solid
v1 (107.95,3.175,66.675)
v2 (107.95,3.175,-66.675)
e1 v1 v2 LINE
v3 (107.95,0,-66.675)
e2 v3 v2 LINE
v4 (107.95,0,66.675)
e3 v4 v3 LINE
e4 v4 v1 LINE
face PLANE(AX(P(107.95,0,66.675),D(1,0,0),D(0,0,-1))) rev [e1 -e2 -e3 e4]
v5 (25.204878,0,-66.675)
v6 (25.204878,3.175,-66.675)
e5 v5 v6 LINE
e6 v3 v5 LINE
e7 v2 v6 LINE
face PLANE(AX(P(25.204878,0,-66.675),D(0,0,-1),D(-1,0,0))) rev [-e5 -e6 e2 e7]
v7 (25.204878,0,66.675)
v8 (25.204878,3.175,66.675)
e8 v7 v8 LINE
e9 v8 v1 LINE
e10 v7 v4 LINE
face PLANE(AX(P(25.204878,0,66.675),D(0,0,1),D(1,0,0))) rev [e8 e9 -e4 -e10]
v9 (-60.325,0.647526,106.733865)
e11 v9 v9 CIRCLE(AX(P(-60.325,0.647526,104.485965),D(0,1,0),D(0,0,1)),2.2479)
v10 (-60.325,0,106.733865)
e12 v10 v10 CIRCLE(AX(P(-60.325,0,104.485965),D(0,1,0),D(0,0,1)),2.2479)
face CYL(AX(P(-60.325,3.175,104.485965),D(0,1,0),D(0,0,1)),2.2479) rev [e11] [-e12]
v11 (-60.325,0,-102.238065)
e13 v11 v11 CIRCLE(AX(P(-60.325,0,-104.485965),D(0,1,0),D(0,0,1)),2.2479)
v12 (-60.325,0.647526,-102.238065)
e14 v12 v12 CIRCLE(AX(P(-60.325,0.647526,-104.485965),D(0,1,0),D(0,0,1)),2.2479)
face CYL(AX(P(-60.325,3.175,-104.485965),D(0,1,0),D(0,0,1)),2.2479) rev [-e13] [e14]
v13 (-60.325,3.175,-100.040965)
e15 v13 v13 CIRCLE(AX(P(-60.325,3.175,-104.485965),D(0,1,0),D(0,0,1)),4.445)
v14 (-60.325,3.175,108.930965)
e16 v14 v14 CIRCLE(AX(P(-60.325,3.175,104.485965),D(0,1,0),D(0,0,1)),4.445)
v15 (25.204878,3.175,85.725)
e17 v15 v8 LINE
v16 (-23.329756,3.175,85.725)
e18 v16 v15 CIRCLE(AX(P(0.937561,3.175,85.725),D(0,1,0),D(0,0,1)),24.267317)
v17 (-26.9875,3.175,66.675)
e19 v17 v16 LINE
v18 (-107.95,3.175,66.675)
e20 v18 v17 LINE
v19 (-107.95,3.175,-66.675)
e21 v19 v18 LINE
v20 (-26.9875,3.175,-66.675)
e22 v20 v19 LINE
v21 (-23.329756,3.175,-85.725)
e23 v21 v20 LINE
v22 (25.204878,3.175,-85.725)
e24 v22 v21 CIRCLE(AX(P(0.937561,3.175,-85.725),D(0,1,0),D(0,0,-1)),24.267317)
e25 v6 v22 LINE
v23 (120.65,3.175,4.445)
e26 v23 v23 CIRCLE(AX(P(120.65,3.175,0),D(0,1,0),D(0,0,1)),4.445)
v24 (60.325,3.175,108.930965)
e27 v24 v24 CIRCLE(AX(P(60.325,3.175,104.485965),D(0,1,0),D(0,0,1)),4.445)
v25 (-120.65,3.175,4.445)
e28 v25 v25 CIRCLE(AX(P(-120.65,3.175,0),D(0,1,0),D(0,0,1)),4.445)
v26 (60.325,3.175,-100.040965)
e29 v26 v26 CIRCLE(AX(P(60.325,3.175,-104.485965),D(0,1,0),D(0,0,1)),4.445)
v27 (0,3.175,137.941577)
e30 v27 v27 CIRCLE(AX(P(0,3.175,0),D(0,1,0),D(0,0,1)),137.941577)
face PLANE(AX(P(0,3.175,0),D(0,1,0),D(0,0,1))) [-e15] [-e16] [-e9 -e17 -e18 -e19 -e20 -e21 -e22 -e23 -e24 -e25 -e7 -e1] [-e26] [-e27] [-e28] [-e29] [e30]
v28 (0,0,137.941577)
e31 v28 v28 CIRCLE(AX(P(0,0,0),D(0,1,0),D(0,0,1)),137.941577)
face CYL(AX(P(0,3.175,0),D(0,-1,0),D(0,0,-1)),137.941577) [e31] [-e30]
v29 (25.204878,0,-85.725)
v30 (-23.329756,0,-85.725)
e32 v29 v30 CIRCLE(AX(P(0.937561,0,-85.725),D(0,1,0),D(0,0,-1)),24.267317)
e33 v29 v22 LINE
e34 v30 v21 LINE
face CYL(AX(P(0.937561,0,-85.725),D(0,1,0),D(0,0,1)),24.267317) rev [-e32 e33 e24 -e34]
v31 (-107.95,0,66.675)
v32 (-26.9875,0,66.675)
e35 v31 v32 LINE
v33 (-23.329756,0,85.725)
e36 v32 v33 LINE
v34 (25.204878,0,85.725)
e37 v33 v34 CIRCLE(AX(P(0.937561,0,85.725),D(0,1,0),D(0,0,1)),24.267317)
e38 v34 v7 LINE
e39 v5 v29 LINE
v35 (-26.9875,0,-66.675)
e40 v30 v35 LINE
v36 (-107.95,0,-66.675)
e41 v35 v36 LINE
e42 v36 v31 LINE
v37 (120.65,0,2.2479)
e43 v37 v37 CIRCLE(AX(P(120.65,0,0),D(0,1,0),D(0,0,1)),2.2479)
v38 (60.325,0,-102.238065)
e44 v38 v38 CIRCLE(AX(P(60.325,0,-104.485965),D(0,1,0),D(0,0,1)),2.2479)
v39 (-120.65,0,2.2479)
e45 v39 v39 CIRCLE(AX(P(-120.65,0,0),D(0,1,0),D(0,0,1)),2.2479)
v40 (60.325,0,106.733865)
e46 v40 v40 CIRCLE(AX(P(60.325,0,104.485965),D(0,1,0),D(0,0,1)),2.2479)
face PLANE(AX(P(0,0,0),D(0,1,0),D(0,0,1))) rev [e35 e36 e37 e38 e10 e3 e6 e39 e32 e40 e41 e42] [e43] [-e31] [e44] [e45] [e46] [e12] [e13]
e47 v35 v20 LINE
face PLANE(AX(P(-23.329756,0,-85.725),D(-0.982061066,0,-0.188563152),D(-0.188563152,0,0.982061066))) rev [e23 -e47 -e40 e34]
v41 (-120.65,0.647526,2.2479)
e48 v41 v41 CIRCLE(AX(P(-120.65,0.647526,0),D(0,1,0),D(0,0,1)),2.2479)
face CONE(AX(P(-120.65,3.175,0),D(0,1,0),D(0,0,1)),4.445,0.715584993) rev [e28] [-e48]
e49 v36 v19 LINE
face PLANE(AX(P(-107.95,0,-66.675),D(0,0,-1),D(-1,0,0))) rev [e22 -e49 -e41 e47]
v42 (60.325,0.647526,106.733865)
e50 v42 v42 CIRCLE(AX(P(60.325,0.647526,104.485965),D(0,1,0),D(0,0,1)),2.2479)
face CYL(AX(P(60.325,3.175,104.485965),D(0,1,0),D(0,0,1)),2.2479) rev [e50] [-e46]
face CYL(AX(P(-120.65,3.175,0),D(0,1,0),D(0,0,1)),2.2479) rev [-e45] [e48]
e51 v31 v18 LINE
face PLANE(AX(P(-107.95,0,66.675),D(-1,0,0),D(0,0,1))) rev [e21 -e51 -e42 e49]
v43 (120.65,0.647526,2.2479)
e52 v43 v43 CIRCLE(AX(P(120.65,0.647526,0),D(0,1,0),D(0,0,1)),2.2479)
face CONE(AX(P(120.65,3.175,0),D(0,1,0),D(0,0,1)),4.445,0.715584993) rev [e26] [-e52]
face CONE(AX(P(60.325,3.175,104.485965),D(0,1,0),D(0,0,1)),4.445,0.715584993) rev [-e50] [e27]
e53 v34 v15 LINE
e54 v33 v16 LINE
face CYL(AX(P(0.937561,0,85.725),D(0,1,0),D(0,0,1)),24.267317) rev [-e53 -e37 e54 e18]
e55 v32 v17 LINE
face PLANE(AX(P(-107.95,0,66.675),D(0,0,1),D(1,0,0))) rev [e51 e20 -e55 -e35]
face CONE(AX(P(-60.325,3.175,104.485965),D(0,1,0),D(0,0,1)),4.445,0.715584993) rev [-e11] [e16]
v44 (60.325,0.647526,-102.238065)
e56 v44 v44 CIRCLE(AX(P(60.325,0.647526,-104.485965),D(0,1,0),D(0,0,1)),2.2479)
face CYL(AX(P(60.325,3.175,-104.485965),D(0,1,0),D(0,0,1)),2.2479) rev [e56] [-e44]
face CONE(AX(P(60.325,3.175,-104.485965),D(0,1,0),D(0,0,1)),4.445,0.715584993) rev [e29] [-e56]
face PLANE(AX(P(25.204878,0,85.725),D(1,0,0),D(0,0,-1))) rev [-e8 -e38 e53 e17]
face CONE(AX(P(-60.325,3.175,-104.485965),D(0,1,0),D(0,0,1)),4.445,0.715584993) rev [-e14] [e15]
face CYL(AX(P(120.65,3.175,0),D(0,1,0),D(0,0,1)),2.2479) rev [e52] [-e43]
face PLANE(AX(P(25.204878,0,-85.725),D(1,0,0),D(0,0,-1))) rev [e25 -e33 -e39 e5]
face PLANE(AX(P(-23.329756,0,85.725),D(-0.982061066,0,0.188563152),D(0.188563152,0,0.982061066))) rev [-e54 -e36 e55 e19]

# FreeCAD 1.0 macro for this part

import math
import FreeCAD as App
import Part
import Sketcher
from FreeCAD import Vector
Q = App.Units.Quantity

doc = App.newDocument("Part")
body = doc.addObject("PartDesign::Body", "Body")

# Sketch on XZ plane
sketch1 = body.newObject("Sketcher::SketchObject", "Sketch")
sketch1.AttachmentSupport = (doc.getObject("XZ_Plane"), [""])
sketch1.MapMode = "FlatFace"
sketch1.addGeometry(Part.Circle(Vector(0, 0, 0), Vector(0, 0, 1), 138), False)
sketch1.addConstraint(Sketcher.Constraint("Coincident", 0, 3, -1, 1))
sketch1.addConstraint(Sketcher.Constraint("Diameter", 0, Q("275.883153 mm")))
pad1 = body.newObject("PartDesign::Pad", "Pad")
pad1.Profile = sketch1
pad1.Length = Q("0.125 in")
pad1.Reversed = True

# Sketch on XZ plane
sketch2 = body.newObject("Sketcher::SketchObject", "Sketch001")
sketch2.AttachmentSupport = (doc.getObject("XZ_Plane"), [""])
sketch2.MapMode = "FlatFace"
sketch2.AttachmentOffset = App.Placement(Vector(0, 0, -0.125 * 25.4), App.Rotation())
sketch2.addGeometry(Part.LineSegment(Vector(25, 67, 0), Vector(108, 67, 0)), False)
sketch2.addGeometry(Part.LineSegment(Vector(108, 67, 0), Vector(108, -67, 0)), False)
sketch2.addGeometry(Part.LineSegment(Vector(108, -67, 0), Vector(25, -67, 0)), False)
sketch2.addGeometry(Part.LineSegment(Vector(25, -67, 0), Vector(25, -86, 0)), False)
sketch2.addGeometry(Part.ArcOfCircle(Part.Circle(Vector(1, -86, 0), Vector(0, 0, 1), 24), math.radians(-180), math.radians(0)), False)
sketch2.addGeometry(Part.LineSegment(Vector(-23, -86, 0), Vector(-27, -67, 0)), False)
sketch2.addGeometry(Part.LineSegment(Vector(-27, -67, 0), Vector(-108, -67, 0)), False)
sketch2.addGeometry(Part.LineSegment(Vector(-108, -67, 0), Vector(-108, 67, 0)), False)
sketch2.addGeometry(Part.LineSegment(Vector(-108, 67, 0), Vector(-27, 67, 0)), False)
sketch2.addGeometry(Part.LineSegment(Vector(-27, 67, 0), Vector(-23, 86, 0)), False)
sketch2.addGeometry(Part.ArcOfCircle(Part.Circle(Vector(1, 86, 0), Vector(0, 0, 1), 24), math.radians(0), math.radians(180)), False)
sketch2.addGeometry(Part.LineSegment(Vector(25, 86, 0), Vector(25, 67, 0)), False)
sketch2.addConstraint(Sketcher.Constraint("Coincident", 0, 2, 1, 1))
sketch2.addConstraint(Sketcher.Constraint("Coincident", 1, 2, 2, 1))
sketch2.addConstraint(Sketcher.Constraint("Coincident", 2, 2, 3, 1))
sketch2.addConstraint(Sketcher.Constraint("Tangent", 3, 2, 4, 2))
sketch2.addConstraint(Sketcher.Constraint("Coincident", 4, 1, 5, 1))
sketch2.addConstraint(Sketcher.Constraint("Coincident", 5, 2, 6, 1))
sketch2.addConstraint(Sketcher.Constraint("Coincident", 6, 2, 7, 1))
sketch2.addConstraint(Sketcher.Constraint("Coincident", 7, 2, 8, 1))
sketch2.addConstraint(Sketcher.Constraint("Coincident", 8, 2, 9, 1))
sketch2.addConstraint(Sketcher.Constraint("Coincident", 9, 2, 10, 2))
sketch2.addConstraint(Sketcher.Constraint("Tangent", 10, 1, 11, 1))
sketch2.addConstraint(Sketcher.Constraint("Coincident", 11, 2, 0, 1))
sketch2.addConstraint(Sketcher.Constraint("Horizontal", 0))
sketch2.addConstraint(Sketcher.Constraint("Vertical", 1))
sketch2.addConstraint(Sketcher.Constraint("Horizontal", 2))
sketch2.addConstraint(Sketcher.Constraint("Vertical", 3))
sketch2.addConstraint(Sketcher.Constraint("Horizontal", 6))
sketch2.addConstraint(Sketcher.Constraint("Vertical", 7))
sketch2.addConstraint(Sketcher.Constraint("Horizontal", 8))
sketch2.addConstraint(Sketcher.Constraint("Vertical", 11))
sketch2.addConstraint(Sketcher.Constraint("Equal", 4, 10))
sketch2.addConstraint(Sketcher.Constraint("Symmetric", 0, 2, 6, 2, -1, 1))
sketch2.addConstraint(Sketcher.Constraint("Symmetric", 4, 3, 10, 3, -1))
sketch2.addConstraint(Sketcher.Constraint("Symmetric", 5, 2, 8, 2, -1))
sketch2.addConstraint(Sketcher.Constraint("Horizontal", 3, 2, 4, 1))
sketch2.addConstraint(Sketcher.Constraint("Horizontal", 2, 2, 5, 2))
sketch2.addConstraint(Sketcher.Constraint("Horizontal", 10, 3, 9, 2))
sketch2.addConstraint(Sketcher.Constraint("DistanceY", 4, 3, 0, 2, Q("6 in")))
sketch2.addConstraint(Sketcher.Constraint("DistanceY", 1, 2, 1, 1, Q("5.25 in")))
sketch2.addConstraint(Sketcher.Constraint("DistanceX", 6, 2, 6, 1, Q("3.1875 in")))
sketch2.addConstraint(Sketcher.Constraint("DistanceX", -1, 1, 0, 2, Q("4.25 in")))
sketch2.addConstraint(Sketcher.Constraint("Distance", 5, Q("0.7637 in")))
sketch2.addConstraint(Sketcher.Constraint("Radius", 4, Q("24.267317 mm")))
pocket1 = body.newObject("PartDesign::Pocket", "Pocket")
pocket1.Profile = sketch2
pocket1.Type = "ThroughAll"
pocket1.Reversed = True

# Sketch on XZ plane
sketch3 = body.newObject("Sketcher::SketchObject", "Sketch002")
sketch3.AttachmentSupport = (doc.getObject("XZ_Plane"), [""])
sketch3.MapMode = "FlatFace"
sketch3.AttachmentOffset = App.Placement(Vector(0, 0, -0.125 * 25.4), App.Rotation())
sketch3.addGeometry(Part.Circle(Vector(-120.7, 0, 0), Vector(0, 0, 1), 1.6), False)
sketch3.addConstraint(Sketcher.Constraint("PointOnObject", 0, 3, -1))
sketch3.addConstraint(Sketcher.Constraint("Diameter", 0, Q("0.125 in")))
sketch3.addConstraint(Sketcher.Constraint("DistanceX", 0, 3, -1, 1, Q("4.75 in")))
pocket2 = body.newObject("PartDesign::Pocket", "Pocket001")
pocket2.Profile = sketch3
pocket2.Type = "ThroughAll"
pocket2.Reversed = True

# Sketch on YZ plane
sketch4 = body.newObject("Sketcher::SketchObject", "Sketch003")
sketch4.AttachmentSupport = (doc.getObject("YZ_Plane"), [""])
sketch4.MapMode = "FlatFace"
sketch4.AttachmentOffset = App.Placement(Vector(0, 0, -4.75 * 25.4), App.Rotation())
sketch4.addGeometry(Part.LineSegment(Vector(0, 0, 0), Vector(3.2, 0, 0)), False)
sketch4.addGeometry(Part.LineSegment(Vector(3.2, 0, 0), Vector(3.2, 4.4, 0)), False)
sketch4.addGeometry(Part.LineSegment(Vector(3.2, 4.4, 0), Vector(0.6, 2.2, 0)), False)
sketch4.addGeometry(Part.LineSegment(Vector(0.6, 2.2, 0), Vector(0, 2.2, 0)), False)
sketch4.addGeometry(Part.LineSegment(Vector(0, 2.2, 0), Vector(0, 0, 0)), False)
sketch4.addConstraint(Sketcher.Constraint("Coincident", 0, 2, 1, 1))
sketch4.addConstraint(Sketcher.Constraint("Coincident", 1, 2, 2, 1))
sketch4.addConstraint(Sketcher.Constraint("Coincident", 2, 2, 3, 1))
sketch4.addConstraint(Sketcher.Constraint("Coincident", 3, 2, 4, 1))
sketch4.addConstraint(Sketcher.Constraint("Coincident", 4, 2, 0, 1))
sketch4.addConstraint(Sketcher.Constraint("Horizontal", 0))
sketch4.addConstraint(Sketcher.Constraint("Vertical", 1))
sketch4.addConstraint(Sketcher.Constraint("Horizontal", 3))
sketch4.addConstraint(Sketcher.Constraint("Vertical", 4))
sketch4.addConstraint(Sketcher.Constraint("Coincident", 4, 2, -1, 1))
sketch4.addConstraint(Sketcher.Constraint("Angle", 2, Q("-139 deg")))
sketch4.addConstraint(Sketcher.Constraint("DistanceX", 0, 1, 0, 2, Q("0.125 in")))
sketch4.addConstraint(Sketcher.Constraint("DistanceY", 1, 1, 1, 2, Q("0.175 in")))
sketch4.addConstraint(Sketcher.Constraint("DistanceY", 4, 2, 4, 1, Q("0.0885 in")))
groove = body.newObject("PartDesign::Groove", "Groove")
groove.Profile = sketch4
groove.ReferenceAxis = (sketch4, ["H_Axis"])
groove.Angle = 360
doc.recompute()

polarpattern = body.newObject("PartDesign::PolarPattern", "PolarPattern")
polarpattern.Originals = [groove]
polarpattern.Axis = (doc.getObject("Y_Axis"), [""])
polarpattern.Angle = 360
polarpattern.Occurrences = 6
body.Tip = polarpattern

doc.recompute()
